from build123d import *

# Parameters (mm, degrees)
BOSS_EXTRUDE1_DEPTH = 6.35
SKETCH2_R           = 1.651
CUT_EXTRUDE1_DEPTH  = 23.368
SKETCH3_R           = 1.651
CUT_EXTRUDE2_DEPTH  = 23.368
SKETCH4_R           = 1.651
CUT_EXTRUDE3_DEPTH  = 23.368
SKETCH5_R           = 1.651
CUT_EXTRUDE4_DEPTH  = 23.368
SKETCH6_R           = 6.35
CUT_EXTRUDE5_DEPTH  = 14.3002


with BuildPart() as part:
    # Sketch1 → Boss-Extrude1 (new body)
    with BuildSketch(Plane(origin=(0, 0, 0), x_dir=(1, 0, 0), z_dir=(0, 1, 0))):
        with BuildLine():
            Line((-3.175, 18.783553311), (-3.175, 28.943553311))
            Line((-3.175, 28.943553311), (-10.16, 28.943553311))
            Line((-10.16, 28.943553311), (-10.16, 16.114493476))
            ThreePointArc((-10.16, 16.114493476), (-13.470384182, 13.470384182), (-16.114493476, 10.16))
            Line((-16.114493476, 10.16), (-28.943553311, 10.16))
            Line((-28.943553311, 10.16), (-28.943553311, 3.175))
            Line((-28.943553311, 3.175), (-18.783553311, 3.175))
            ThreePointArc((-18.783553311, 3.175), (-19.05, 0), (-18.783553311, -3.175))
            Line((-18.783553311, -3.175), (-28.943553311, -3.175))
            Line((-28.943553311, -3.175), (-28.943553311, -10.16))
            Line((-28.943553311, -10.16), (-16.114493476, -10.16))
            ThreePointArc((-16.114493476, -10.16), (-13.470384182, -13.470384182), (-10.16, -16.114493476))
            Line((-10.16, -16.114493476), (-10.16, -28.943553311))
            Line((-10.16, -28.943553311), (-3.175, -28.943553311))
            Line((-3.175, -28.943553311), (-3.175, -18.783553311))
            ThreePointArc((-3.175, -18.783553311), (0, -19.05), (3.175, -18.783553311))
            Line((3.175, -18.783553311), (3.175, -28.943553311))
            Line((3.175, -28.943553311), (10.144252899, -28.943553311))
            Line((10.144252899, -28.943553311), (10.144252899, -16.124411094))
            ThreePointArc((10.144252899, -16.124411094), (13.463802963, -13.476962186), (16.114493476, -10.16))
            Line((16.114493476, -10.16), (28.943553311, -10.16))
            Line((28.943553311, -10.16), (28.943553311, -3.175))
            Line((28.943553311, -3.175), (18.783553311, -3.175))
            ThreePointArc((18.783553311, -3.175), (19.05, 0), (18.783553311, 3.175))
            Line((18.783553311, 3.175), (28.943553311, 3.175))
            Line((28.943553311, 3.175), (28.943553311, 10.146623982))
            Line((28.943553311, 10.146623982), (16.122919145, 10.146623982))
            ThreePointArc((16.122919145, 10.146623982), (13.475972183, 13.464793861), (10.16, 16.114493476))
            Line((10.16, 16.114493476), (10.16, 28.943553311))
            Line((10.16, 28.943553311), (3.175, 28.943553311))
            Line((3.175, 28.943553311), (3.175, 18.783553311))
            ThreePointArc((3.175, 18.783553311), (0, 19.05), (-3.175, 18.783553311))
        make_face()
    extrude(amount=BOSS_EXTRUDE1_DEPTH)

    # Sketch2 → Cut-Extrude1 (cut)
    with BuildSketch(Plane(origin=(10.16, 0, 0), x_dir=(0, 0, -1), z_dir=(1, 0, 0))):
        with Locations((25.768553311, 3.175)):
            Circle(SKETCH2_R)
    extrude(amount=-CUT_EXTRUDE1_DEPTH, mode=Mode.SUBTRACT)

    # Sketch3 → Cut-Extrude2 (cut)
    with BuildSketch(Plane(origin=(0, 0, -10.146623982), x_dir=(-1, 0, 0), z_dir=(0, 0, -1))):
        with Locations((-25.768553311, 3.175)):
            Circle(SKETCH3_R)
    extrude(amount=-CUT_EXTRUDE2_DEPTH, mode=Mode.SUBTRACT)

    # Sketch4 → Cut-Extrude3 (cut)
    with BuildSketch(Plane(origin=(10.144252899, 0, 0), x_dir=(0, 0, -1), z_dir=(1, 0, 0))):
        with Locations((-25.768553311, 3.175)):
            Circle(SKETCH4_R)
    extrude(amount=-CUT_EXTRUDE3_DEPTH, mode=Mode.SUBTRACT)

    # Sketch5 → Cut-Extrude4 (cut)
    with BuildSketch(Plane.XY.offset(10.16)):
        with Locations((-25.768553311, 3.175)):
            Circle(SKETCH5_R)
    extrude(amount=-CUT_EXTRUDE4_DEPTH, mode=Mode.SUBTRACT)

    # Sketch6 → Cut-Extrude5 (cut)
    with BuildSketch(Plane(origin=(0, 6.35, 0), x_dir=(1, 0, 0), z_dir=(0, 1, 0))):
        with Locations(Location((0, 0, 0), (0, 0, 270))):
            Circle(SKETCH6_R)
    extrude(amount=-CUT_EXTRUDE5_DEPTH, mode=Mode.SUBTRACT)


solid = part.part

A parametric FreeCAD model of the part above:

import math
import FreeCAD as App
import Part
import Sketcher
from FreeCAD import Vector
Q = App.Units.Quantity

doc = App.newDocument("Part")
body = doc.addObject("PartDesign::Body", "Body")

# Sketch on XZ plane
sketch1 = doc.addObject("Sketcher::SketchObject", "Sketch")
body.addObject(sketch1)
sketch1.AttachmentSupport = (doc.XZ_Plane, [""])
sketch1.MapMode = "FlatFace"
sketch1.addGeometry([
    Part.LineSegment(Vector(-3, -19, 0), Vector(-3, -29, 0)),  # 0
    Part.LineSegment(Vector(-3, -29, 0), Vector(-10, -29, 0)),  # 1
    Part.LineSegment(Vector(-10, -29, 0), Vector(-10, -16, 0)),  # 2
    Part.ArcOfCircle(Part.Circle(Vector(0, 0, 0), Vector(0, 0, 1), 19), math.radians(-148), math.radians(-122)),  # 3
    Part.LineSegment(Vector(-16, -10, 0), Vector(-29, -10, 0)),  # 4
    Part.LineSegment(Vector(-29, -10, 0), Vector(-29, -3, 0)),  # 5
    Part.LineSegment(Vector(-29, -3, 0), Vector(-19, -3, 0)),  # 6
    Part.ArcOfCircle(Part.Circle(Vector(0, 0, 0), Vector(0, 0, 1), 19), math.radians(170.41), math.radians(189.59)),  # 7
    Part.LineSegment(Vector(-19, 3, 0), Vector(-29, 3, 0)),  # 8
    Part.LineSegment(Vector(-29, 3, 0), Vector(-29, 10, 0)),  # 9
    Part.LineSegment(Vector(-29, 10, 0), Vector(-16, 10, 0)),  # 10
    Part.ArcOfCircle(Part.Circle(Vector(0, 0, 0), Vector(0, 0, 1), 19), math.radians(122), math.radians(148)),  # 11
    Part.LineSegment(Vector(-10, 16, 0), Vector(-10, 29, 0)),  # 12
    Part.LineSegment(Vector(-10, 29, 0), Vector(-3, 29, 0)),  # 13
    Part.LineSegment(Vector(-3, 29, 0), Vector(-3, 19, 0)),  # 14
    Part.ArcOfCircle(Part.Circle(Vector(0, 0, 0), Vector(0, 0, 1), 19), math.radians(80.41), math.radians(99.59)),  # 15
    Part.LineSegment(Vector(3, 19, 0), Vector(3, 29, 0)),  # 16
    Part.LineSegment(Vector(3, 29, 0), Vector(10, 29, 0)),  # 17
    Part.LineSegment(Vector(10, 29, 0), Vector(10, 16, 0)),  # 18
    Part.ArcOfCircle(Part.Circle(Vector(0, 0, 0), Vector(0, 0, 1), 19), math.radians(32), math.radians(58)),  # 19
    Part.LineSegment(Vector(16, 10, 0), Vector(29, 10, 0)),  # 20
    Part.LineSegment(Vector(29, 10, 0), Vector(29, 3, 0)),  # 21
    Part.LineSegment(Vector(29, 3, 0), Vector(19, 3, 0)),  # 22
    Part.ArcOfCircle(Part.Circle(Vector(0, 0, 0), Vector(0, 0, 1), 19), math.radians(-9.59), math.radians(9.59)),  # 23
    Part.LineSegment(Vector(19, -3, 0), Vector(29, -3, 0)),  # 24
    Part.LineSegment(Vector(29, -3, 0), Vector(29, -10, 0)),  # 25
    Part.LineSegment(Vector(29, -10, 0), Vector(16, -10, 0)),  # 26
    Part.ArcOfCircle(Part.Circle(Vector(0, 0, 0), Vector(0, 0, 1), 19), math.radians(-58), math.radians(-32)),  # 27
    Part.LineSegment(Vector(10, -16, 0), Vector(10, -29, 0)),  # 28
    Part.LineSegment(Vector(10, -29, 0), Vector(3, -29, 0)),  # 29
    Part.LineSegment(Vector(3, -29, 0), Vector(3, -19, 0)),  # 30
    Part.ArcOfCircle(Part.Circle(Vector(0, 0, 0), Vector(0, 0, 1), 19), math.radians(-99.59), math.radians(-80.41)),  # 31
], False)
sketch1.addConstraint([
    Sketcher.Constraint("Coincident", 0, 2, 1, 1),
    Sketcher.Constraint("Coincident", 1, 2, 2, 1),
    Sketcher.Constraint("Coincident", 2, 2, 3, 2),
    Sketcher.Constraint("Coincident", 3, 1, 4, 1),
    Sketcher.Constraint("Coincident", 4, 2, 5, 1),
    Sketcher.Constraint("Coincident", 5, 2, 6, 1),
    Sketcher.Constraint("Coincident", 6, 2, 7, 2),
    Sketcher.Constraint("Coincident", 7, 1, 8, 1),
    Sketcher.Constraint("Coincident", 8, 2, 9, 1),
    Sketcher.Constraint("Coincident", 9, 2, 10, 1),
    Sketcher.Constraint("Coincident", 10, 2, 11, 2),
    Sketcher.Constraint("Coincident", 11, 1, 12, 1),
    Sketcher.Constraint("Coincident", 12, 2, 13, 1),
    Sketcher.Constraint("Coincident", 13, 2, 14, 1),
    Sketcher.Constraint("Coincident", 14, 2, 15, 2),
    Sketcher.Constraint("Coincident", 15, 1, 16, 1),
    Sketcher.Constraint("Coincident", 16, 2, 17, 1),
    Sketcher.Constraint("Coincident", 17, 2, 18, 1),
    Sketcher.Constraint("Coincident", 18, 2, 19, 2),
    Sketcher.Constraint("Coincident", 19, 1, 20, 1),
    Sketcher.Constraint("Coincident", 20, 2, 21, 1),
    Sketcher.Constraint("Coincident", 21, 2, 22, 1),
    Sketcher.Constraint("Coincident", 22, 2, 23, 2),
    Sketcher.Constraint("Coincident", 23, 1, 24, 1),
    Sketcher.Constraint("Coincident", 24, 2, 25, 1),
    Sketcher.Constraint("Coincident", 25, 2, 26, 1),
    Sketcher.Constraint("Coincident", 26, 2, 27, 2),
    Sketcher.Constraint("Coincident", 27, 1, 28, 1),
    Sketcher.Constraint("Coincident", 28, 2, 29, 1),
    Sketcher.Constraint("Coincident", 29, 2, 30, 1),
    Sketcher.Constraint("Coincident", 30, 2, 31, 2),
    Sketcher.Constraint("Coincident", 31, 1, 0, 1),
    Sketcher.Constraint("Vertical", 0),
    Sketcher.Constraint("Horizontal", 1),
    Sketcher.Constraint("Vertical", 2),
    Sketcher.Constraint("Horizontal", 4),
    Sketcher.Constraint("Vertical", 5),
    Sketcher.Constraint("Horizontal", 6),
    Sketcher.Constraint("Horizontal", 8),
    Sketcher.Constraint("Vertical", 9),
    Sketcher.Constraint("Horizontal", 10),
    Sketcher.Constraint("Vertical", 12),
    Sketcher.Constraint("Horizontal", 13),
    Sketcher.Constraint("Vertical", 14),
    Sketcher.Constraint("Vertical", 16),
    Sketcher.Constraint("Horizontal", 17),
    Sketcher.Constraint("Vertical", 18),
    Sketcher.Constraint("Horizontal", 20),
    Sketcher.Constraint("Vertical", 21),
    Sketcher.Constraint("Horizontal", 22),
    Sketcher.Constraint("Horizontal", 24),
    Sketcher.Constraint("Vertical", 25),
    Sketcher.Constraint("Horizontal", 26),
    Sketcher.Constraint("Vertical", 28),
    Sketcher.Constraint("Horizontal", 29),
    Sketcher.Constraint("Vertical", 30),
    Sketcher.Constraint("Coincident", 3, 3, -1, 1),
    Sketcher.Constraint("Coincident", 7, 3, -1, 1),
    Sketcher.Constraint("Coincident", 11, 3, -1, 1),
    Sketcher.Constraint("Coincident", 15, 3, -1, 1),
    Sketcher.Constraint("Coincident", 19, 3, -1, 1),
    Sketcher.Constraint("Coincident", 23, 3, -1, 1),
    Sketcher.Constraint("Coincident", 27, 3, -1, 1),
    Sketcher.Constraint("Coincident", 31, 3, -1, 1),
    Sketcher.Constraint("Equal", 3, 7),
    Sketcher.Constraint("Equal", 7, 11),
    Sketcher.Constraint("Equal", 11, 15),
    Sketcher.Constraint("Equal", 15, 19),
    Sketcher.Constraint("Equal", 19, 23),
    Sketcher.Constraint("Equal", 23, 27),
    Sketcher.Constraint("Equal", 27, 31),
    Sketcher.Constraint("Symmetric", 0, 2, 16, 2, -1, 1),
    Sketcher.Constraint("Symmetric", 4, 2, 20, 2, -1, 1),
    Sketcher.Constraint("Symmetric", 8, 2, 24, 2, -1, 1),
    Sketcher.Constraint("Symmetric", 12, 2, 28, 2, -1, 1),
    Sketcher.Constraint("Symmetric", 13, 2, 16, 2, -2),
    Sketcher.Constraint("Symmetric", 9, 2, 20, 2, -2),
    Sketcher.Constraint("Horizontal", 8, 2, 21, 2),
    Sketcher.Constraint("Horizontal", 6, 2, 23, 1),
    Sketcher.Constraint("Horizontal", 2, 2, 27, 1),
    Sketcher.Constraint("Horizontal", 30, 2, 31, 1),
    Sketcher.Constraint("Equal", 24, 0),
    Sketcher.Constraint("Equal", 20, 2),
    Sketcher.Constraint("Equal", 29, 5),
    Sketcher.Constraint("Radius", 3, Q("0.75 in")),
    Sketcher.Constraint("DistanceX", 6, 1, 6, 2, Q("0.4 in")),
    Sketcher.Constraint("DistanceX", 1, 2, -1, 1, Q("0.4 in")),
    Sketcher.Constraint("DistanceX", 1, 2, 1, 1, Q("0.275 in")),
    Sketcher.Constraint("DistanceX", 18, 2, 20, 2, 18.7993),
    Sketcher.Constraint("DistanceX", 26, 2, 26, 1, 12.820634),
])
pad1 = doc.addObject("PartDesign::Pad", "Pad")
body.addObject(pad1)
pad1.Profile = sketch1
pad1.Length = Q("0.25 in")
pad1.Reversed = True

# Sketch on YZ plane
sketch2 = doc.addObject("Sketcher::SketchObject", "Sketch001")
body.addObject(sketch2)
sketch2.AttachmentSupport = (doc.YZ_Plane, [""])
sketch2.MapMode = "FlatFace"
sketch2.AttachmentOffset = App.Placement(Vector(0, 0, 0.4 * 25.4), App.Rotation())
sketch2.addGeometry(Part.Circle(Vector(3.2, -25.8, 0), Vector(0, 0, 1), 1.7), False)
sketch2.addConstraint([
    Sketcher.Constraint("Diameter", 0, Q("0.13 in")),
    Sketcher.Constraint("DistanceX", -1, 1, 0, 3, Q("0.125 in")),
    Sketcher.Constraint("DistanceY", 0, 3, -1, 1, 25.768553),
])
pocket1 = doc.addObject("PartDesign::Pocket", "Pocket")
body.addObject(pocket1)
pocket1.Profile = sketch2
pocket1.Length = Q("0.92 in")

# Sketch on XY plane
sketch3 = doc.addObject("Sketcher::SketchObject", "Sketch002")
body.addObject(sketch3)
sketch3.AttachmentSupport = (doc.XY_Plane, [""])
sketch3.MapMode = "FlatFace"
sketch3.AttachmentOffset = App.Placement(Vector(0, 0, -10.146624), App.Rotation())
sketch3.addGeometry(Part.Circle(Vector(25.8, 3.2, 0), Vector(0, 0, 1), 1.7), False)
sketch3.addConstraint([
    Sketcher.Constraint("Diameter", 0, Q("0.13 in")),
    Sketcher.Constraint("DistanceY", -1, 1, 0, 3, Q("0.125 in")),
    Sketcher.Constraint("DistanceX", -1, 1, 0, 3, 25.768553),
])
pocket2 = doc.addObject("PartDesign::Pocket", "Pocket001")
body.addObject(pocket2)
pocket2.Profile = sketch3
pocket2.Length = Q("0.92 in")
pocket2.Reversed = True

# Sketch on YZ plane
sketch4 = doc.addObject("Sketcher::SketchObject", "Sketch003")
body.addObject(sketch4)
sketch4.AttachmentSupport = (doc.YZ_Plane, [""])
sketch4.MapMode = "FlatFace"
sketch4.AttachmentOffset = App.Placement(Vector(0, 0, 10.144253), App.Rotation())
sketch4.addGeometry(Part.Circle(Vector(3.2, 25.8, 0), Vector(0, 0, 1), 1.7), False)
sketch4.addConstraint([
    Sketcher.Constraint("Diameter", 0, Q("0.13 in")),
    Sketcher.Constraint("DistanceX", -1, 1, 0, 3, Q("0.125 in")),
    Sketcher.Constraint("DistanceY", -1, 1, 0, 3, 25.768553),
])
pocket3 = doc.addObject("PartDesign::Pocket", "Pocket002")
body.addObject(pocket3)
pocket3.Profile = sketch4
pocket3.Length = Q("0.92 in")

# Sketch on XY plane
sketch5 = doc.addObject("Sketcher::SketchObject", "Sketch004")
body.addObject(sketch5)
sketch5.AttachmentSupport = (doc.XY_Plane, [""])
sketch5.MapMode = "FlatFace"
sketch5.AttachmentOffset = App.Placement(Vector(0, 0, 0.4 * 25.4), App.Rotation())
sketch5.addGeometry(Part.Circle(Vector(-25.8, 3.2, 0), Vector(0, 0, 1), 1.7), False)
sketch5.addConstraint([
    Sketcher.Constraint("Diameter", 0, Q("0.13 in")),
    Sketcher.Constraint("DistanceY", -1, 1, 0, 3, Q("0.125 in")),
    Sketcher.Constraint("DistanceX", 0, 3, -1, 1, 25.768553),
])
pocket4 = doc.addObject("PartDesign::Pocket", "Pocket003")
body.addObject(pocket4)
pocket4.Profile = sketch5
pocket4.Length = Q("0.92 in")

# Sketch on XZ plane
sketch6 = doc.addObject("Sketcher::SketchObject", "Sketch005")
body.addObject(sketch6)
sketch6.AttachmentSupport = (doc.XZ_Plane, [""])
sketch6.MapMode = "FlatFace"
sketch6.AttachmentOffset = App.Placement(Vector(0, 0, -0.25 * 25.4), App.Rotation())
sketch6.addGeometry(Part.Circle(Vector(0, 0, 0), Vector(0, 0, 1), 6), False)
sketch6.addConstraint([
    Sketcher.Constraint("Coincident", 0, 3, -1, 1),
    Sketcher.Constraint("Diameter", 0, Q("0.5 in")),
])
pocket5 = doc.addObject("PartDesign::Pocket", "Pocket004")
body.addObject(pocket5)
pocket5.Profile = sketch6
pocket5.Length = Q("0.563 in")
pocket5.Reversed = True

doc.recompute()
